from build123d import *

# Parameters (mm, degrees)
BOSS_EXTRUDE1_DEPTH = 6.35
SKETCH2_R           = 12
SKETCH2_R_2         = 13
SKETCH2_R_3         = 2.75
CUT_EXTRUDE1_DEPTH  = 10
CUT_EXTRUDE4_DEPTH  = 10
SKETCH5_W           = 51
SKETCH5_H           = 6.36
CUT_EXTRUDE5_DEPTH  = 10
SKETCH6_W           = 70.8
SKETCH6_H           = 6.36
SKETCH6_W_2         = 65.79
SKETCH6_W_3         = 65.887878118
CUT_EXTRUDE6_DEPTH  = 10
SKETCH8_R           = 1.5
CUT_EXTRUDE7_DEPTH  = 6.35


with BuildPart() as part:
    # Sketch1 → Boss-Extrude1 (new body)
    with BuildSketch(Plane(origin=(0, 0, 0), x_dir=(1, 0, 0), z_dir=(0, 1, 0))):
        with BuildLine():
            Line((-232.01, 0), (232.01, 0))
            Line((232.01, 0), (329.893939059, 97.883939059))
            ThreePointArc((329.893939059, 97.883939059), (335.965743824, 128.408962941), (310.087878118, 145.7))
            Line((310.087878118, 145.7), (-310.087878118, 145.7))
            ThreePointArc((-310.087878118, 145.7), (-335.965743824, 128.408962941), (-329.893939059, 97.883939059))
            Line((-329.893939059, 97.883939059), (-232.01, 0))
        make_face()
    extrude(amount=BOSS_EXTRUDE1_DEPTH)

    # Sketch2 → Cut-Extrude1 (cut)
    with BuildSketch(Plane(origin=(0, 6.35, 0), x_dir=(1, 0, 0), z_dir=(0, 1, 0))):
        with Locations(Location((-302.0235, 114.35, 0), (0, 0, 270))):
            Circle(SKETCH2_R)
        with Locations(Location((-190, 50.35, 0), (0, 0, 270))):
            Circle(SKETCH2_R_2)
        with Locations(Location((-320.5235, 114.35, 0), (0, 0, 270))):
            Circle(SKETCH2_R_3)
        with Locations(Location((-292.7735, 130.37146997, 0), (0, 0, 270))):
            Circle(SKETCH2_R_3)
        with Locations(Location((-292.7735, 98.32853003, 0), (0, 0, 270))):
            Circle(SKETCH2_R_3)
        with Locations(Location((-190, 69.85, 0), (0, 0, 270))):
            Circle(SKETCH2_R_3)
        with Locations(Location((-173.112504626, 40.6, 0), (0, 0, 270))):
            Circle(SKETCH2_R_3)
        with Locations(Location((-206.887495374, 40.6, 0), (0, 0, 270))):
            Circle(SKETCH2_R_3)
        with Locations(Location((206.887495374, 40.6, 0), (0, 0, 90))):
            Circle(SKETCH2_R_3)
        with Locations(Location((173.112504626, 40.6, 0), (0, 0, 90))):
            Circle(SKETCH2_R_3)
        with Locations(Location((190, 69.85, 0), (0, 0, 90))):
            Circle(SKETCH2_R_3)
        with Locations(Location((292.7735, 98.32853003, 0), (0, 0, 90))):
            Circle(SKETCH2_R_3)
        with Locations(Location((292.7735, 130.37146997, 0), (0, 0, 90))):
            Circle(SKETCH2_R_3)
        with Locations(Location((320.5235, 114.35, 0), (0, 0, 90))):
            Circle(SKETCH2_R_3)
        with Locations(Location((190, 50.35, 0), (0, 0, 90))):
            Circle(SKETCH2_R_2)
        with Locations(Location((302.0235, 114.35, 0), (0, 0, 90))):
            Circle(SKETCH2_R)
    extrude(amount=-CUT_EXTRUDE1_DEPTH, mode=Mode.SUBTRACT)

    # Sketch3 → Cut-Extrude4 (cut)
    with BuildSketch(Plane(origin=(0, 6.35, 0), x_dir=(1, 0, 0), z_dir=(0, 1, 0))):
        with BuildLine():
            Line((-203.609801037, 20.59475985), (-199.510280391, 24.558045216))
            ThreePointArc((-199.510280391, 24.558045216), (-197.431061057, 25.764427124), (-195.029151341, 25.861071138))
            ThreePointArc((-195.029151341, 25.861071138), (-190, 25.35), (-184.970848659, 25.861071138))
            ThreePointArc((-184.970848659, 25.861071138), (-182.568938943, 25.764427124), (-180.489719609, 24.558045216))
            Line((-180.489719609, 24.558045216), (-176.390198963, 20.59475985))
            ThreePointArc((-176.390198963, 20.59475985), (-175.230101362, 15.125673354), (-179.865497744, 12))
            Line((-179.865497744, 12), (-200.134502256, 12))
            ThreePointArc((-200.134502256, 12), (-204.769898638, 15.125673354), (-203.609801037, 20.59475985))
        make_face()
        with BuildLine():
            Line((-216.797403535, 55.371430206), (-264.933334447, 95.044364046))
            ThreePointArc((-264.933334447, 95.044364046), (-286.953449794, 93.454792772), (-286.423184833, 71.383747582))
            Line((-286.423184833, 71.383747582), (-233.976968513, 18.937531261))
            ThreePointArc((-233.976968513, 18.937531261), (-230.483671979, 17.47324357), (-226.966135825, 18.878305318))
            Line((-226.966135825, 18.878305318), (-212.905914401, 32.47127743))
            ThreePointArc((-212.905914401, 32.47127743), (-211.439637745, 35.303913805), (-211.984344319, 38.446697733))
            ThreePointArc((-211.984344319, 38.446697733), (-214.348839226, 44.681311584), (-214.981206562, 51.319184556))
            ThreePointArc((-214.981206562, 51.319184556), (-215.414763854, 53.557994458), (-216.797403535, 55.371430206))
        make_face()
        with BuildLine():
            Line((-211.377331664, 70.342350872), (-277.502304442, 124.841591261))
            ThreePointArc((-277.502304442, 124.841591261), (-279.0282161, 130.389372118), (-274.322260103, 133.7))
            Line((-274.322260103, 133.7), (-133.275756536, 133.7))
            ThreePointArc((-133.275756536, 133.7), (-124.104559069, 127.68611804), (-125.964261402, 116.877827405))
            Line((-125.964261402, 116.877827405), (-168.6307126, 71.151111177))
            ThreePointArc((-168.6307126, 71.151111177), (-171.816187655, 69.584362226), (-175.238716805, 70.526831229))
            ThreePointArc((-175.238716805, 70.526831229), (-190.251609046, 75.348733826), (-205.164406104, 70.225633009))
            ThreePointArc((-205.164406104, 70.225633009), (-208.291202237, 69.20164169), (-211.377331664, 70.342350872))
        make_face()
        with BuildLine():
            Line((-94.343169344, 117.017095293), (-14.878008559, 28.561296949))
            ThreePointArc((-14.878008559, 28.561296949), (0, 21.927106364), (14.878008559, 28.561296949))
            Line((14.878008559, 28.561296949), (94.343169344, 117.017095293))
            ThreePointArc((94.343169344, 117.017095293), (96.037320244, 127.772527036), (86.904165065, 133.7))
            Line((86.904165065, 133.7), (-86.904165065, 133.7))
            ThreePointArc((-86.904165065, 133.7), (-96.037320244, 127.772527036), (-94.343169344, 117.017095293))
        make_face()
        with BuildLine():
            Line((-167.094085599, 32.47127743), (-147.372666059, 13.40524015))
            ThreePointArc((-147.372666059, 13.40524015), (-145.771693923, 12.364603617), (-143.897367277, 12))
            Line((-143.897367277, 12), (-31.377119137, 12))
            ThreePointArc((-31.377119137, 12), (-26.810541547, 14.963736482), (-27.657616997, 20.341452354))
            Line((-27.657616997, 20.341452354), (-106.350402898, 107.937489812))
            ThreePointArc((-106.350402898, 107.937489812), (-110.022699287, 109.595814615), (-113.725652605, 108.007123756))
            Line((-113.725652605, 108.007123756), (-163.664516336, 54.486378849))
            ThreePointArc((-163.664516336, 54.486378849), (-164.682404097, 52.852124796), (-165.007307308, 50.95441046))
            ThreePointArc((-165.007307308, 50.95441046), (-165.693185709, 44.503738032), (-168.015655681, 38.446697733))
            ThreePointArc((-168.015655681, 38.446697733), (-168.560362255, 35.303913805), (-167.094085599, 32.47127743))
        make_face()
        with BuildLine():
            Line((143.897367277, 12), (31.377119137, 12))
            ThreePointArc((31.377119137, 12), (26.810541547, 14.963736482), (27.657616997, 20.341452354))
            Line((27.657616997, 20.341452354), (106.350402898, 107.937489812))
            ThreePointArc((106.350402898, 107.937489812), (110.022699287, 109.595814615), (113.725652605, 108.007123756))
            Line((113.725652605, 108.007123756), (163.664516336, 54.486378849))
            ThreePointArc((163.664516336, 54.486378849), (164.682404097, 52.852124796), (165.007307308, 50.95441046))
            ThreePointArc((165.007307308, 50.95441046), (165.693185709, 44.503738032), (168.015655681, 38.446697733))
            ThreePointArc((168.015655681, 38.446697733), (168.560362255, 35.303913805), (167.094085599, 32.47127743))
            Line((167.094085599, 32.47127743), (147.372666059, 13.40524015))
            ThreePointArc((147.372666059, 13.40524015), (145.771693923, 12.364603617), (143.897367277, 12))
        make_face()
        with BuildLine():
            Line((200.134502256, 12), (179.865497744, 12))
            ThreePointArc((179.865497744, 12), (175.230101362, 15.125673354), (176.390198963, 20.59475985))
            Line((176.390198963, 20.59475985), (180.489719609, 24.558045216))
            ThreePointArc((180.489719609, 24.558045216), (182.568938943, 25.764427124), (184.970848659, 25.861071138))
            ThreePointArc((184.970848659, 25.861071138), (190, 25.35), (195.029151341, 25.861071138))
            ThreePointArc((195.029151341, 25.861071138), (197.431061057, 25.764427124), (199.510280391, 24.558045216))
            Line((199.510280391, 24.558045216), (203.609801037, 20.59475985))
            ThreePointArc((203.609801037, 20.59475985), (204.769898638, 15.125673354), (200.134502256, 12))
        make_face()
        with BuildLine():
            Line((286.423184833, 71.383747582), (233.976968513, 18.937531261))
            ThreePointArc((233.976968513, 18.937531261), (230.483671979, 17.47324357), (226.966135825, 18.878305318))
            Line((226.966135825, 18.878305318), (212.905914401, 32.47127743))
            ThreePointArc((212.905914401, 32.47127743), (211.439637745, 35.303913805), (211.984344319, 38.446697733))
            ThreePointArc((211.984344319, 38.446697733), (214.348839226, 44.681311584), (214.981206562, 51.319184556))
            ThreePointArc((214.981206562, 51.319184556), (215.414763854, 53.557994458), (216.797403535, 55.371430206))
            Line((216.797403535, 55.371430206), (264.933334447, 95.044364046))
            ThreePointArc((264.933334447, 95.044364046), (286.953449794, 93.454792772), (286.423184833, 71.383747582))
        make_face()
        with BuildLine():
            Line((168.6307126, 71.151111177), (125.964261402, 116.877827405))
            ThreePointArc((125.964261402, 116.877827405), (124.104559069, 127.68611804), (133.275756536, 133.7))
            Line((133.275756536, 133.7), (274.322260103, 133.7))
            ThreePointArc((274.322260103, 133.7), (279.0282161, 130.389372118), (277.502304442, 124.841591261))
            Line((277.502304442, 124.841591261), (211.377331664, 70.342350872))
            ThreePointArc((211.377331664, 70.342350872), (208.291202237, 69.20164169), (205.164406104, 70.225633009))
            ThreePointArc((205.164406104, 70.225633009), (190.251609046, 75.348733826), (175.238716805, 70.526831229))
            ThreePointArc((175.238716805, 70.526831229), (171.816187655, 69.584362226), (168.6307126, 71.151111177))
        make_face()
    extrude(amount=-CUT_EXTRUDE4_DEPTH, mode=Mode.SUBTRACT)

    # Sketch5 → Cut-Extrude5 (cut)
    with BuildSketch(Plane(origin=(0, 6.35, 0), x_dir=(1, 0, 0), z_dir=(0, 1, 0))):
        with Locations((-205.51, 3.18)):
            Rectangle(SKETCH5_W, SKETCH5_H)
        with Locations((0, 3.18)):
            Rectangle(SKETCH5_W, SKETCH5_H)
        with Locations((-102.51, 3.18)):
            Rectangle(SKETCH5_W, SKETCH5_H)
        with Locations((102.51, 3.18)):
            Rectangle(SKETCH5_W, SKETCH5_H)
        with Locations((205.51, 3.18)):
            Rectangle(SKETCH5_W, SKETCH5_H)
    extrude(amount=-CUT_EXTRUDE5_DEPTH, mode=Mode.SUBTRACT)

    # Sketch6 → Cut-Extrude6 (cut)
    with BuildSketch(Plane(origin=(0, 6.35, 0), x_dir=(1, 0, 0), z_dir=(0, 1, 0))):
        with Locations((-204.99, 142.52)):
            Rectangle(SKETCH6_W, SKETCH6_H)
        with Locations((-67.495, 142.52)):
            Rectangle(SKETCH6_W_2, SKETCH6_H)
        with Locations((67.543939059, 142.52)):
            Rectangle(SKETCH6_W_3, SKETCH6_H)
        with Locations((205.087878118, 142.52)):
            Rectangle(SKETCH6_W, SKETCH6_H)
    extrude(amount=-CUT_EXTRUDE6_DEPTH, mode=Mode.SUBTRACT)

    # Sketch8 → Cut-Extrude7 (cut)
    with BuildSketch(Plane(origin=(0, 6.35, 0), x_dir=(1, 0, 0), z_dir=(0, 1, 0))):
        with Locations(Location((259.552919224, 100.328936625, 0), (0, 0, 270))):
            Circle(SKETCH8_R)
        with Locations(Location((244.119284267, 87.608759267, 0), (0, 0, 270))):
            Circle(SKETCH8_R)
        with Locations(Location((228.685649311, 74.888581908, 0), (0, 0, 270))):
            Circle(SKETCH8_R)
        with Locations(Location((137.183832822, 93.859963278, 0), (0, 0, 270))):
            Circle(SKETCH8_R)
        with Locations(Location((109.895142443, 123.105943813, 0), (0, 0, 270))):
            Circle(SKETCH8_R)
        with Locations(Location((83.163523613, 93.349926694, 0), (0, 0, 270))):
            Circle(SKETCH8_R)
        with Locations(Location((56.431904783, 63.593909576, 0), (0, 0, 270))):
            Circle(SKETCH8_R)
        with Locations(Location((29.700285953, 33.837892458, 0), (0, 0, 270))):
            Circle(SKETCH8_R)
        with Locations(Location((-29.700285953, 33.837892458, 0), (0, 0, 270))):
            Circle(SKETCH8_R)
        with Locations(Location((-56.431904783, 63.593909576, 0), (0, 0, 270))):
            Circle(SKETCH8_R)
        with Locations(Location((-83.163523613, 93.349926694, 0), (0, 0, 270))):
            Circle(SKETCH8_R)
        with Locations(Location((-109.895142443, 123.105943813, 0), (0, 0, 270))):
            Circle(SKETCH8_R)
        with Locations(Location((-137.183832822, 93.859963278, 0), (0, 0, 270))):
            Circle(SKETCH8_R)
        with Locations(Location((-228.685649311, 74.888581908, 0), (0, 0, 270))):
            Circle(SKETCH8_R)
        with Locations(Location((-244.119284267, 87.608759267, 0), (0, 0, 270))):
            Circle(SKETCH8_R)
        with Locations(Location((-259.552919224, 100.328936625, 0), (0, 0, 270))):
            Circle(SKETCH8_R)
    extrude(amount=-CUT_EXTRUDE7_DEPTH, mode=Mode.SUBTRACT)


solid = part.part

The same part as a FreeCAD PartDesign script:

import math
import FreeCAD as App
import Part
import Sketcher
from FreeCAD import Vector
Q = App.Units.Quantity


def add_polygon(sketch, points):
    """Adds a closed chain of lines whose ends are joined by coincident constraints."""
    first, n = sketch.GeometryCount, len(points)
    for a, b in zip(points, points[1:] + points[:1]):
        sketch.addGeometry(Part.LineSegment(App.Vector(*a, 0), App.Vector(*b, 0)), False)
    for i in range(n):
        sketch.addConstraint(Sketcher.Constraint("Coincident", first + i, 2, first + (i + 1) % n, 1))

doc = App.newDocument("Part")
body = doc.addObject("PartDesign::Body", "Body")

sketch1 = doc.addObject("Sketcher::SketchObject", "Sketch")
body.addObject(sketch1)
sketch1.AttachmentSupport = (doc.XZ_Plane, [""])
sketch1.MapMode = "FlatFace"
sketch1.addGeometry([
    Part.LineSegment(Vector(-232, 0, 0), Vector(232, 0, 0)),
    Part.LineSegment(Vector(232, 0, 0), Vector(330, -98, 0)),
    Part.ArcOfCircle(Part.Circle(Vector(310, -118, 0), Vector(0, 0, 1), 28), math.radians(-90), math.radians(45)),
    Part.LineSegment(Vector(310, -146, 0), Vector(-310, -146, 0)),
    Part.ArcOfCircle(Part.Circle(Vector(-310, -118, 0), Vector(0, 0, 1), 28), math.radians(135), math.radians(270)),
    Part.LineSegment(Vector(-330, -98, 0), Vector(-232, 0, 0)),
], False)
sketch1.addConstraint([
    Sketcher.Constraint("Coincident", 0, 2, 1, 1),
    Sketcher.Constraint("Tangent", 1, 2, 2, 2),
    Sketcher.Constraint("Tangent", 2, 1, 3, 1),
    Sketcher.Constraint("Tangent", 3, 2, 4, 2),
    Sketcher.Constraint("Tangent", 4, 1, 5, 1),
    Sketcher.Constraint("Coincident", 5, 2, 0, 1),
    Sketcher.Constraint("Horizontal", 0),
    Sketcher.Constraint("Horizontal", 3),
    Sketcher.Constraint("Equal", 2, 4),
    Sketcher.Constraint("Symmetric", 0, 2, 5, 2, -1, 1),
    Sketcher.Constraint("Perpendicular", 1, 5),
    Sketcher.Constraint("Horizontal", 1, 2, 4, 1),
    Sketcher.Constraint("Radius", 2, Q("28.01 mm")),
    Sketcher.Constraint("DistanceX", 0, 1, 0, 2, Q("464.02 mm")),
    Sketcher.Constraint("DistanceY", 2, 1, -1, 1, Q("145.7 mm")),
])
pad1 = doc.addObject("PartDesign::Pad", "Pad")
body.addObject(pad1)
pad1.Profile = sketch1
pad1.Length = 6.35
pad1.Reversed = True

sketch2 = doc.addObject("Sketcher::SketchObject", "Sketch001")
body.addObject(sketch2)
sketch2.AttachmentSupport = (doc.XZ_Plane, [""])
sketch2.MapMode = "FlatFace"
sketch2.AttachmentOffset = App.Placement(Vector(0, 0, -6.35), App.Rotation())
sketch2.addGeometry([
    Part.Circle(Vector(-302, -114.3, 0), Vector(0, 0, 1), 12),
    Part.Circle(Vector(-190, -50.4, 0), Vector(0, 0, 1), 13),
    Part.Circle(Vector(-320.5, -114.3, 0), Vector(0, 0, 1), 2.8),
    Part.Circle(Vector(-292.8, -130.4, 0), Vector(0, 0, 1), 2.8),
    Part.Circle(Vector(-292.8, -98.3, 0), Vector(0, 0, 1), 2.8),
    Part.Circle(Vector(-190, -69.8, 0), Vector(0, 0, 1), 2.8),
    Part.Circle(Vector(-173.1, -40.6, 0), Vector(0, 0, 1), 2.8),
    Part.Circle(Vector(-206.9, -40.6, 0), Vector(0, 0, 1), 2.8),
    Part.Circle(Vector(206.9, -40.6, 0), Vector(0, 0, 1), 2.8),
    Part.Circle(Vector(173.1, -40.6, 0), Vector(0, 0, 1), 2.8),
    Part.Circle(Vector(190, -69.8, 0), Vector(0, 0, 1), 2.8),
    Part.Circle(Vector(292.8, -98.3, 0), Vector(0, 0, 1), 2.8),
    Part.Circle(Vector(292.8, -130.4, 0), Vector(0, 0, 1), 2.8),
    Part.Circle(Vector(320.5, -114.3, 0), Vector(0, 0, 1), 2.8),
    Part.Circle(Vector(190, -50.4, 0), Vector(0, 0, 1), 13),
    Part.Circle(Vector(302, -114.3, 0), Vector(0, 0, 1), 12),
], False)
sketch2.addConstraint([
    Sketcher.Constraint("Equal", 2, 3),
    Sketcher.Constraint("Equal", 3, 4),
    Sketcher.Constraint("Equal", 4, 5),
    Sketcher.Constraint("Equal", 5, 6),
    Sketcher.Constraint("Equal", 6, 7),
    Sketcher.Constraint("Equal", 7, 8),
    Sketcher.Constraint("Equal", 8, 9),
    Sketcher.Constraint("Equal", 9, 10),
    Sketcher.Constraint("Equal", 10, 11),
    Sketcher.Constraint("Equal", 11, 12),
    Sketcher.Constraint("Equal", 12, 13),
    Sketcher.Constraint("Equal", 1, 14),
    Sketcher.Constraint("Equal", 0, 15),
    Sketcher.Constraint("Symmetric", 7, 3, 8, 3, -2),
    Sketcher.Constraint("Symmetric", 6, 3, 9, 3, -2),
    Sketcher.Constraint("Symmetric", 5, 3, 10, 3, -2),
    Sketcher.Constraint("Symmetric", 4, 3, 11, 3, -2),
    Sketcher.Constraint("Symmetric", 3, 3, 12, 3, -2),
    Sketcher.Constraint("Symmetric", 2, 3, 13, 3, -2),
    Sketcher.Constraint("Symmetric", 1, 3, 14, 3, -2),
    Sketcher.Constraint("Symmetric", 0, 3, 15, 3, -2),
    Sketcher.Constraint("Horizontal", 0, 3, 2, 3),
    Sketcher.Constraint("Horizontal", 6, 3, 7, 3),
    Sketcher.Constraint("Vertical", 3, 3, 4, 3),
    Sketcher.Constraint("Vertical", 1, 3, 5, 3),
    Sketcher.Constraint("Diameter", 0, Q("24 mm")),
    Sketcher.Constraint("Diameter", 1, Q("26 mm")),
    Sketcher.Constraint("Diameter", 2, Q("5.5 mm")),
    Sketcher.Constraint("DistanceX", 1, 3, -1, 1, Q("190 mm")),
    Sketcher.Constraint("DistanceY", 0, 3, 1, 3, Q("64 mm")),
    Sketcher.Constraint("DistanceX", 6, 3, 8, 3, Q("380 mm")),
    Sketcher.Constraint("DistanceY", 6, 3, -1, 1, Q("40.6 mm")),
    Sketcher.Constraint("DistanceX", 2, 3, 0, 3, Q("18.5 mm")),
    Sketcher.Constraint("DistanceY", 5, 3, 1, 3, Q("19.5 mm")),
    Sketcher.Constraint("DistanceY", 0, 3, -1, 1, Q("114.35 mm")),
    Sketcher.Constraint("DistanceX", 0, 3, 3, 3, Q("9.25 mm")),
    Sketcher.Constraint("DistanceX", 0, 3, -1, 1, Q("302.0235 mm")),
    Sketcher.Constraint("DistanceY", 3, 3, -1, 1, Q("130.37147 mm")),
    Sketcher.Constraint("DistanceY", 4, 3, -1, 1, Q("98.32853 mm")),
    Sketcher.Constraint("DistanceX", 7, 3, 6, 3, Q("33.774991 mm")),
])
pocket1 = doc.addObject("PartDesign::Pocket", "Pocket")
body.addObject(pocket1)
pocket1.Profile = sketch2
pocket1.Length = 10
pocket1.Reversed = True

sketch3 = doc.addObject("Sketcher::SketchObject", "Sketch002")
body.addObject(sketch3)
sketch3.AttachmentSupport = (doc.XZ_Plane, [""])
sketch3.MapMode = "FlatFace"
sketch3.AttachmentOffset = App.Placement(Vector(0, 0, -6.35), App.Rotation())
sketch3.addGeometry([
    Part.LineSegment(Vector(-199.5, -24.6, 0), Vector(-203.6, -20.6, 0)),
    Part.ArcOfCircle(Part.Circle(Vector(-200.1, -17, 0), Vector(0, 0, 1), 5), math.radians(90), math.radians(226)),
    Part.LineSegment(Vector(-200.1, -12, 0), Vector(-179.9, -12, 0)),
    Part.ArcOfCircle(Part.Circle(Vector(-179.9, -17, 0), Vector(0, 0, 1), 5), math.radians(-46), math.radians(90)),
    Part.LineSegment(Vector(-176.4, -20.6, 0), Vector(-180.5, -24.6, 0)),
    Part.ArcOfCircle(Part.Circle(Vector(-184, -21, 0), Vector(0, 0, 1), 5), math.radians(-102), math.radians(-46)),
    Part.ArcOfCircle(Part.Circle(Vector(-190, -50.4, 0), Vector(0, 0, 1), 25), math.radians(78), math.radians(102)),
    Part.ArcOfCircle(Part.Circle(Vector(-196, -21, 0), Vector(0, 0, 1), 5), math.radians(-134), math.radians(-78)),
    Part.LineSegment(Vector(-216.8, -55.4, 0), Vector(-264.9, -95, 0)),
    Part.ArcOfCircle(Part.Circle(Vector(-275.1, -82.7, 0), Vector(0, 0, 1), 16), math.radians(135), math.radians(309)),
    Part.LineSegment(Vector(-286.4, -71.4, 0), Vector(-234, -18.9, 0)),
    Part.ArcOfCircle(Part.Circle(Vector(-230.4, -22.5, 0), Vector(0, 0, 1), 5), math.radians(46), math.radians(135)),
    Part.LineSegment(Vector(-227, -18.9, 0), Vector(-212.9, -32.5, 0)),
    Part.ArcOfCircle(Part.Circle(Vector(-216.4, -36.1, 0), Vector(0, 0, 1), 5), math.radians(-28), math.radians(46)),
    Part.ArcOfCircle(Part.Circle(Vector(-190, -50.3, 0), Vector(0, 0, 1), 25), math.radians(152), math.radians(182)),
    Part.ArcOfCircle(Part.Circle(Vector(-220, -51.5, 0), Vector(0, 0, 1), 5), math.radians(-51), math.radians(2)),
    Part.LineSegment(Vector(-277.5, -124.8, 0), Vector(-211.4, -70.3, 0)),
    Part.ArcOfCircle(Part.Circle(Vector(-208.2, -74.2, 0), Vector(0, 0, 1), 5), math.radians(53), math.radians(129)),
    Part.ArcOfCircle(Part.Circle(Vector(-190, -50.4, 0), Vector(0, 0, 1), 25), math.radians(-127), math.radians(-54)),
    Part.ArcOfCircle(Part.Circle(Vector(-172.3, -74.6, 0), Vector(0, 0, 1), 5), math.radians(43), math.radians(126)),
    Part.LineSegment(Vector(-168.6, -71.2, 0), Vector(-126, -116.9, 0)),
    Part.ArcOfCircle(Part.Circle(Vector(-133.3, -123.7, 0), Vector(0, 0, 1), 10), math.radians(-90), math.radians(43)),
    Part.LineSegment(Vector(-133.3, -133.7, 0), Vector(-274.3, -133.7, 0)),
    Part.ArcOfCircle(Part.Circle(Vector(-274.3, -128.7, 0), Vector(0, 0, 1), 5), math.radians(129), math.radians(270)),
    Part.LineSegment(Vector(-94.3, -117, 0), Vector(-14.9, -28.6, 0)),
    Part.ArcOfCircle(Part.Circle(Vector(0, -41.9, 0), Vector(0, 0, 1), 20), math.radians(42), math.radians(138)),
    Part.LineSegment(Vector(14.9, -28.6, 0), Vector(94.3, -117, 0)),
    Part.ArcOfCircle(Part.Circle(Vector(86.9, -123.7, 0), Vector(0, 0, 1), 10), math.radians(-90), math.radians(42)),
    Part.LineSegment(Vector(86.9, -133.7, 0), Vector(-86.9, -133.7, 0)),
    Part.ArcOfCircle(Part.Circle(Vector(-86.9, -123.7, 0), Vector(0, 0, 1), 10), math.radians(138), math.radians(270)),
    Part.LineSegment(Vector(-167.1, -32.5, 0), Vector(-147.4, -13.4, 0)),
    Part.ArcOfCircle(Part.Circle(Vector(-143.9, -17, 0), Vector(0, 0, 1), 5), math.radians(90), math.radians(134)),
    Part.LineSegment(Vector(-143.9, -12, 0), Vector(-31.4, -12, 0)),
    Part.ArcOfCircle(Part.Circle(Vector(-31.4, -17, 0), Vector(0, 0, 1), 5), math.radians(-42), math.radians(90)),
    Part.LineSegment(Vector(-27.7, -20.3, 0), Vector(-106.4, -107.9, 0)),
    Part.ArcOfCircle(Part.Circle(Vector(-110.1, -104.6, 0), Vector(0, 0, 1), 5), math.radians(-137), math.radians(-42)),
    Part.LineSegment(Vector(-113.7, -108, 0), Vector(-163.7, -54.5, 0)),
    Part.ArcOfCircle(Part.Circle(Vector(-160, -51.1, 0), Vector(0, 0, 1), 5), math.radians(179), math.radians(223)),
    Part.ArcOfCircle(Part.Circle(Vector(-190, -50.4, 0), Vector(0, 0, 1), 25), math.radians(-1), math.radians(28)),
    Part.ArcOfCircle(Part.Circle(Vector(-163.6, -36.1, 0), Vector(0, 0, 1), 5), math.radians(134), math.radians(208)),
    Part.LineSegment(Vector(31.4, -12, 0), Vector(143.9, -12, 0)),
    Part.ArcOfCircle(Part.Circle(Vector(143.9, -17, 0), Vector(0, 0, 1), 5), math.radians(46), math.radians(90)),
    Part.LineSegment(Vector(147.4, -13.4, 0), Vector(167.1, -32.5, 0)),
    Part.ArcOfCircle(Part.Circle(Vector(163.6, -36.1, 0), Vector(0, 0, 1), 5), math.radians(-28), math.radians(46)),
    Part.ArcOfCircle(Part.Circle(Vector(190, -50.4, 0), Vector(0, 0, 1), 25), math.radians(152), math.radians(181)),
    Part.ArcOfCircle(Part.Circle(Vector(160, -51.1, 0), Vector(0, 0, 1), 5), math.radians(-43), math.radians(1)),
    Part.LineSegment(Vector(163.7, -54.5, 0), Vector(113.7, -108, 0)),
    Part.ArcOfCircle(Part.Circle(Vector(110.1, -104.6, 0), Vector(0, 0, 1), 5), math.radians(-138), math.radians(-43)),
    Part.LineSegment(Vector(106.4, -107.9, 0), Vector(27.7, -20.3, 0)),
    Part.ArcOfCircle(Part.Circle(Vector(31.4, -17, 0), Vector(0, 0, 1), 5), math.radians(90), math.radians(222)),
    Part.LineSegment(Vector(179.9, -12, 0), Vector(200.1, -12, 0)),
    Part.ArcOfCircle(Part.Circle(Vector(200.1, -17, 0), Vector(0, 0, 1), 5), math.radians(-46), math.radians(90)),
    Part.LineSegment(Vector(203.6, -20.6, 0), Vector(199.5, -24.6, 0)),
    Part.ArcOfCircle(Part.Circle(Vector(196, -21, 0), Vector(0, 0, 1), 5), math.radians(-102), math.radians(-46)),
    Part.ArcOfCircle(Part.Circle(Vector(190, -50.4, 0), Vector(0, 0, 1), 25), math.radians(78), math.radians(102)),
    Part.ArcOfCircle(Part.Circle(Vector(184, -21, 0), Vector(0, 0, 1), 5), math.radians(-134), math.radians(-78)),
    Part.LineSegment(Vector(180.5, -24.6, 0), Vector(176.4, -20.6, 0)),
    Part.ArcOfCircle(Part.Circle(Vector(179.9, -17, 0), Vector(0, 0, 1), 5), math.radians(90), math.radians(226)),
    Part.LineSegment(Vector(234, -18.9, 0), Vector(286.4, -71.4, 0)),
    Part.ArcOfCircle(Part.Circle(Vector(275.1, -82.7, 0), Vector(0, 0, 1), 16), math.radians(-129), math.radians(45)),
    Part.LineSegment(Vector(264.9, -95, 0), Vector(216.8, -55.4, 0)),
    Part.ArcOfCircle(Part.Circle(Vector(220, -51.5, 0), Vector(0, 0, 1), 5), math.radians(178), math.radians(231)),
    Part.ArcOfCircle(Part.Circle(Vector(190, -50.3, 0), Vector(0, 0, 1), 25), math.radians(-2), math.radians(28)),
    Part.ArcOfCircle(Part.Circle(Vector(216.4, -36.1, 0), Vector(0, 0, 1), 5), math.radians(134), math.radians(208)),
    Part.LineSegment(Vector(212.9, -32.5, 0), Vector(227, -18.9, 0)),
    Part.ArcOfCircle(Part.Circle(Vector(230.4, -22.5, 0), Vector(0, 0, 1), 5), math.radians(45), math.radians(134)),
    Part.LineSegment(Vector(126, -116.9, 0), Vector(168.6, -71.2, 0)),
    Part.ArcOfCircle(Part.Circle(Vector(172.3, -74.6, 0), Vector(0, 0, 1), 5), math.radians(54), math.radians(137)),
    Part.ArcOfCircle(Part.Circle(Vector(190, -50.4, 0), Vector(0, 0, 1), 25), math.radians(-126), math.radians(-53)),
    Part.ArcOfCircle(Part.Circle(Vector(208.2, -74.2, 0), Vector(0, 0, 1), 5), math.radians(51), math.radians(127)),
    Part.LineSegment(Vector(211.4, -70.3, 0), Vector(277.5, -124.8, 0)),
    Part.ArcOfCircle(Part.Circle(Vector(274.3, -128.7, 0), Vector(0, 0, 1), 5), math.radians(-90), math.radians(51)),
    Part.LineSegment(Vector(274.3, -133.7, 0), Vector(133.3, -133.7, 0)),
    Part.ArcOfCircle(Part.Circle(Vector(133.3, -123.7, 0), Vector(0, 0, 1), 10), math.radians(137), math.radians(270)),
], False)
sketch3.addConstraint([
    Sketcher.Constraint("Tangent", 0, 2, 1, 2),
    Sketcher.Constraint("Tangent", 1, 1, 2, 1),
    Sketcher.Constraint("Tangent", 2, 2, 3, 2),
    Sketcher.Constraint("Tangent", 3, 1, 4, 1),
    Sketcher.Constraint("Tangent", 4, 2, 5, 2),
    Sketcher.Constraint("Tangent", 5, 1, 6, 1),
    Sketcher.Constraint("Tangent", 6, 2, 7, 2),
    Sketcher.Constraint("Tangent", 7, 1, 0, 1),
    Sketcher.Constraint("Tangent", 8, 2, 9, 2),
    Sketcher.Constraint("Tangent", 9, 1, 10, 1),
    Sketcher.Constraint("Tangent", 10, 2, 11, 2),
    Sketcher.Constraint("Tangent", 11, 1, 12, 1),
    Sketcher.Constraint("Tangent", 12, 2, 13, 2),
    Sketcher.Constraint("Tangent", 13, 1, 14, 1),
    Sketcher.Constraint("Tangent", 14, 2, 15, 2),
    Sketcher.Constraint("Tangent", 15, 1, 8, 1),
    Sketcher.Constraint("Tangent", 16, 2, 17, 2),
    Sketcher.Constraint("Tangent", 17, 1, 18, 1),
    Sketcher.Constraint("Tangent", 18, 2, 19, 2),
    Sketcher.Constraint("Tangent", 19, 1, 20, 1),
    Sketcher.Constraint("Tangent", 20, 2, 21, 2),
    Sketcher.Constraint("Tangent", 21, 1, 22, 1),
    Sketcher.Constraint("Tangent", 22, 2, 23, 2),
    Sketcher.Constraint("Tangent", 23, 1, 16, 1),
    Sketcher.Constraint("Tangent", 24, 2, 25, 2),
    Sketcher.Constraint("Tangent", 25, 1, 26, 1),
    Sketcher.Constraint("Tangent", 26, 2, 27, 2),
    Sketcher.Constraint("Tangent", 27, 1, 28, 1),
    Sketcher.Constraint("Tangent", 28, 2, 29, 2),
    Sketcher.Constraint("Tangent", 29, 1, 24, 1),
    Sketcher.Constraint("Tangent", 30, 2, 31, 2),
    Sketcher.Constraint("Tangent", 31, 1, 32, 1),
    Sketcher.Constraint("Tangent", 32, 2, 33, 2),
    Sketcher.Constraint("Tangent", 33, 1, 34, 1),
    Sketcher.Constraint("Tangent", 34, 2, 35, 2),
    Sketcher.Constraint("Tangent", 35, 1, 36, 1),
    Sketcher.Constraint("Tangent", 36, 2, 37, 2),
    Sketcher.Constraint("Tangent", 37, 1, 38, 1),
    Sketcher.Constraint("Tangent", 38, 2, 39, 2),
    Sketcher.Constraint("Tangent", 39, 1, 30, 1),
    Sketcher.Constraint("Tangent", 40, 2, 41, 2),
    Sketcher.Constraint("Tangent", 41, 1, 42, 1),
    Sketcher.Constraint("Tangent", 42, 2, 43, 2),
    Sketcher.Constraint("Tangent", 43, 1, 44, 1),
    Sketcher.Constraint("Tangent", 44, 2, 45, 2),
    Sketcher.Constraint("Tangent", 45, 1, 46, 1),
    Sketcher.Constraint("Tangent", 46, 2, 47, 2),
    Sketcher.Constraint("Tangent", 47, 1, 48, 1),
    Sketcher.Constraint("Tangent", 48, 2, 49, 2),
    Sketcher.Constraint("Tangent", 49, 1, 40, 1),
    Sketcher.Constraint("Tangent", 50, 2, 51, 2),
    Sketcher.Constraint("Tangent", 51, 1, 52, 1),
    Sketcher.Constraint("Tangent", 52, 2, 53, 2),
    Sketcher.Constraint("Tangent", 53, 1, 54, 1),
    Sketcher.Constraint("Tangent", 54, 2, 55, 2),
    Sketcher.Constraint("Tangent", 55, 1, 56, 1),
    Sketcher.Constraint("Tangent", 56, 2, 57, 2),
    Sketcher.Constraint("Tangent", 57, 1, 50, 1),
    Sketcher.Constraint("Tangent", 58, 2, 59, 2),
    Sketcher.Constraint("Tangent", 59, 1, 60, 1),
    Sketcher.Constraint("Tangent", 60, 2, 61, 2),
    Sketcher.Constraint("Tangent", 61, 1, 62, 1),
    Sketcher.Constraint("Tangent", 62, 2, 63, 2),
    Sketcher.Constraint("Tangent", 63, 1, 64, 1),
    Sketcher.Constraint("Tangent", 64, 2, 65, 2),
    Sketcher.Constraint("Tangent", 65, 1, 58, 1),
    Sketcher.Constraint("Tangent", 66, 2, 67, 2),
    Sketcher.Constraint("Tangent", 67, 1, 68, 1),
    Sketcher.Constraint("Tangent", 68, 2, 69, 2),
    Sketcher.Constraint("Tangent", 69, 1, 70, 1),
    Sketcher.Constraint("Tangent", 70, 2, 71, 2),
    Sketcher.Constraint("Tangent", 71, 1, 72, 1),
    Sketcher.Constraint("Tangent", 72, 2, 73, 2),
    Sketcher.Constraint("Tangent", 73, 1, 66, 1),
    Sketcher.Constraint("Horizontal", 2),
    Sketcher.Constraint("Horizontal", 22),
    Sketcher.Constraint("Horizontal", 28),
    Sketcher.Constraint("Horizontal", 32),
    Sketcher.Constraint("Horizontal", 40),
    Sketcher.Constraint("Horizontal", 50),
    Sketcher.Constraint("Horizontal", 72),
    Sketcher.Constraint("Coincident", 14, 3, 6, 3),
    Sketcher.Constraint("Coincident", 18, 3, 6, 3),
    Sketcher.Constraint("Coincident", 38, 3, 6, 3),
    Sketcher.Constraint("Coincident", 54, 3, 44, 3),
    Sketcher.Constraint("Coincident", 62, 3, 44, 3),
    Sketcher.Constraint("Coincident", 68, 3, 44, 3),
    Sketcher.Constraint("Equal", 1, 3),
    Sketcher.Constraint("Equal", 3, 5),
    Sketcher.Constraint("Equal", 5, 7),
    Sketcher.Constraint("Equal", 7, 11),
    Sketcher.Constraint("Equal", 11, 13),
    Sketcher.Constraint("Equal", 6, 14),
    Sketcher.Constraint("Equal", 13, 15),
    Sketcher.Constraint("Equal", 15, 17),
    Sketcher.Constraint("Equal", 14, 18),
    Sketcher.Constraint("Equal", 17, 19),
    Sketcher.Constraint("Equal", 19, 23),
    Sketcher.Constraint("Equal", 21, 27),
    Sketcher.Constraint("Equal", 27, 29),
    Sketcher.Constraint("Equal", 23, 31),
    Sketcher.Constraint("Equal", 31, 33),
    Sketcher.Constraint("Equal", 33, 35),
    Sketcher.Constraint("Equal", 35, 37),
    Sketcher.Constraint("Equal", 18, 38),
    Sketcher.Constraint("Equal", 37, 39),
    Sketcher.Constraint("Equal", 39, 41),
    Sketcher.Constraint("Equal", 41, 43),
    Sketcher.Constraint("Equal", 38, 44),
    Sketcher.Constraint("Equal", 43, 45),
    Sketcher.Constraint("Equal", 45, 47),
    Sketcher.Constraint("Equal", 47, 49),
    Sketcher.Constraint("Equal", 49, 51),
    Sketcher.Constraint("Equal", 51, 53),
    Sketcher.Constraint("Equal", 44, 54),
    Sketcher.Constraint("Equal", 53, 55),
    Sketcher.Constraint("Equal", 55, 57),
    Sketcher.Constraint("Equal", 9, 59),
    Sketcher.Constraint("Equal", 57, 61),
    Sketcher.Constraint("Equal", 54, 62),
    Sketcher.Constraint("Equal", 61, 63),
    Sketcher.Constraint("Equal", 63, 65),
    Sketcher.Constraint("Equal", 65, 67),
    Sketcher.Constraint("Equal", 62, 68),
    Sketcher.Constraint("Equal", 67, 69),
    Sketcher.Constraint("Equal", 69, 71),
    Sketcher.Constraint("Equal", 29, 73),
    Sketcher.Constraint("Symmetric", 31, 3, 41, 3, -2),
    Sketcher.Constraint("Symmetric", 39, 3, 43, 3, -2),
    Sketcher.Constraint("Symmetric", 37, 3, 45, 3, -2),
    Sketcher.Constraint("Symmetric", 35, 3, 47, 3, -2),
    Sketcher.Constraint("Symmetric", 1, 3, 51, 3, -2),
    Sketcher.Constraint("Symmetric", 9, 3, 59, 3, -2),
    Sketcher.Constraint("Symmetric", 11, 3, 65, 3, -2),
    Sketcher.Constraint("Symmetric", 23, 3, 71, 3, -2),
    Sketcher.Constraint("Symmetric", 24, 2, 25, 1, -2),
    Sketcher.Constraint("Symmetric", 4, 2, 55, 1, -2),
    Sketcher.Constraint("Symmetric", 19, 1, 66, 2, -2),
    Sketcher.Constraint("Parallel", 0, 12),
    Sketcher.Constraint("Parallel", 8, 16),
    Sketcher.Constraint("Parallel", 4, 30),
    Sketcher.Constraint("Parallel", 24, 34),
    Sketcher.Constraint("Parallel", 20, 36),
    Sketcher.Constraint("Parallel", 12, 42),
    Sketcher.Constraint("Parallel", 26, 48),
    Sketcher.Constraint("Parallel", 30, 52),
    Sketcher.Constraint("Perpendicular", 10, 58),
    Sketcher.Constraint("Parallel", 52, 64),
    Sketcher.Constraint("Parallel", 60, 70),
    Sketcher.Constraint("Horizontal", 5, 3, 7, 3),
    Sketcher.Constraint("Horizontal", 21, 3, 27, 3),
    Sketcher.Constraint("Horizontal", 3, 3, 31, 3),
    Sketcher.Constraint("Horizontal", 13, 3, 39, 3),
    Sketcher.Constraint("Horizontal", 15, 3, 61, 3),
    Sketcher.Constraint("Radius", 1, Q("5 mm")),
    Sketcher.Constraint("Radius", 6, Q("25 mm")),
    Sketcher.Constraint("Radius", 9, Q("16 mm")),
    Sketcher.Constraint("Radius", 21, Q("10 mm")),
    Sketcher.Constraint("Radius", 25, Q("20 mm")),
    Sketcher.Constraint("DistanceY", 1, 3, -1, 1, Q("17 mm")),
    Sketcher.Constraint("DistanceX", 6, 3, -1, 1, Q("190 mm")),
    Sketcher.Constraint("DistanceY", 21, 3, -1, 1, Q("123.7 mm")),
    Sketcher.Constraint("DistanceY", 6, 3, -1, 1, Q("50.35 mm")),
    Sketcher.Constraint("DistanceX", 28, 2, 28, 1, Q("173.80833 mm")),
    Sketcher.Constraint("DistanceX", 32, 1, 32, 2, Q("112.520248 mm")),
    Sketcher.Constraint("DistanceX", 0, 2, -1, 1, Q("203.609801 mm")),
    Sketcher.Constraint("Distance", 0, Q("5.702079 mm")),
    Sketcher.Constraint("Distance", 10, Q("74.17015 mm")),
    Sketcher.Constraint("Distance", 12, Q("19.556552 mm")),
    Sketcher.Constraint("Distance", 30, Q("27.430789 mm")),
    Sketcher.Constraint("Distance", 34, Q("117.752369 mm")),
    Sketcher.Constraint("Distance", 36, Q("73.200821 mm")),
    Sketcher.Constraint("DistanceX", 22, 2, 22, 1, Q("141.046504 mm")),
    Sketcher.Constraint("DistanceY", 15, 3, -1, 1, Q("51.513021 mm")),
    Sketcher.Constraint("DistanceY", 17, 3, -1, 1, Q("74.20076 mm")),
    Sketcher.Constraint("DistanceX", 19, 3, -1, 1, Q("172.28646 mm")),
])
pocket2 = doc.addObject("PartDesign::Pocket", "Pocket001")
body.addObject(pocket2)
pocket2.Profile = sketch3
pocket2.Length = 10
pocket2.Reversed = True

sketch4 = doc.addObject("Sketcher::SketchObject", "Sketch003")
body.addObject(sketch4)
sketch4.AttachmentSupport = (doc.XZ_Plane, [""])
sketch4.MapMode = "FlatFace"
sketch4.AttachmentOffset = App.Placement(Vector(0, 0, -6.35), App.Rotation())
add_polygon(sketch4, [(-231, -6), (-231, 0), (-180, 0), (-180, -6)])
add_polygon(sketch4, [(-26, -6), (-26, 0), (26, 0), (26, -6)])
add_polygon(sketch4, [(-128, -6), (-128, 0), (-77, 0), (-77, -6)])
add_polygon(sketch4, [(77, -6), (77, 0), (128, 0), (128, -6)])
add_polygon(sketch4, [(180, -6), (180, 0), (231, 0), (231, -6)])
sketch4.addConstraint([
    Sketcher.Constraint("Vertical", 0),
    Sketcher.Constraint("Horizontal", 1),
    Sketcher.Constraint("Vertical", 2),
    Sketcher.Constraint("Horizontal", 3),
    Sketcher.Constraint("Vertical", 4),
    Sketcher.Constraint("Horizontal", 5),
    Sketcher.Constraint("Vertical", 6),
    Sketcher.Constraint("Horizontal", 7),
    Sketcher.Constraint("Vertical", 8),
    Sketcher.Constraint("Horizontal", 9),
    Sketcher.Constraint("Vertical", 10),
    Sketcher.Constraint("Horizontal", 11),
    Sketcher.Constraint("Vertical", 12),
    Sketcher.Constraint("Horizontal", 13),
    Sketcher.Constraint("Vertical", 14),
    Sketcher.Constraint("Horizontal", 15),
    Sketcher.Constraint("Vertical", 16),
    Sketcher.Constraint("Horizontal", 17),
    Sketcher.Constraint("Vertical", 18),
    Sketcher.Constraint("Horizontal", 19),
    Sketcher.Constraint("Symmetric", 4, 2, 5, 2, -1, 1),
    Sketcher.Constraint("Symmetric", 9, 2, 12, 2, -1, 1),
    Sketcher.Constraint("Symmetric", 1, 2, 16, 2, -1, 1),
    Sketcher.Constraint("Symmetric", 8, 2, 13, 2, -2),
    Sketcher.Constraint("Symmetric", 0, 2, 17, 2, -2),
    Sketcher.Constraint("Horizontal", 3, 2, 6, 2),
    Sketcher.Constraint("Horizontal", 7, 2, 10, 2),
    Sketcher.Constraint("Horizontal", 11, 2, 14, 2),
    Sketcher.Constraint("Horizontal", 15, 2, 18, 2),
    Sketcher.Constraint("Equal", 3, 5),
    Sketcher.Constraint("Equal", 7, 9),
    Sketcher.Constraint("DistanceX", 1, 1, 1, 2, Q("51 mm")),
    Sketcher.Constraint("DistanceX", 1, 2, 8, 2, Q("52 mm")),
    Sketcher.Constraint("DistanceY", 0, 1, 0, 2, Q("6.36 mm")),
    Sketcher.Constraint("DistanceX", 0, 2, -1, 1, Q("231.01 mm")),
])
pocket3 = doc.addObject("PartDesign::Pocket", "Pocket002")
body.addObject(pocket3)
pocket3.Profile = sketch4
pocket3.Length = 10
pocket3.Reversed = True

sketch5 = doc.addObject("Sketcher::SketchObject", "Sketch004")
body.addObject(sketch5)
sketch5.AttachmentSupport = (doc.XZ_Plane, [""])
sketch5.MapMode = "FlatFace"
sketch5.AttachmentOffset = App.Placement(Vector(0, 0, -6.35), App.Rotation())
add_polygon(sketch5, [(-240, -146), (-240, -139), (-170, -139), (-170, -146)])
add_polygon(sketch5, [(-100, -146), (-100, -139), (-35, -139), (-35, -146)])
add_polygon(sketch5, [(35, -146), (35, -139), (100, -139), (100, -146)])
add_polygon(sketch5, [(170, -146), (170, -139), (240, -139), (240, -146)])
sketch5.addConstraint([
    Sketcher.Constraint("Vertical", 0),
    Sketcher.Constraint("Horizontal", 1),
    Sketcher.Constraint("Vertical", 2),
    Sketcher.Constraint("Horizontal", 3),
    Sketcher.Constraint("Vertical", 4),
    Sketcher.Constraint("Horizontal", 5),
    Sketcher.Constraint("Vertical", 6),
    Sketcher.Constraint("Horizontal", 7),
    Sketcher.Constraint("Vertical", 8),
    Sketcher.Constraint("Horizontal", 9),
    Sketcher.Constraint("Vertical", 10),
    Sketcher.Constraint("Horizontal", 11),
    Sketcher.Constraint("Vertical", 12),
    Sketcher.Constraint("Horizontal", 13),
    Sketcher.Constraint("Vertical", 14),
    Sketcher.Constraint("Horizontal", 15),
    Sketcher.Constraint("Symmetric", 5, 2, 8, 2, -2),
    Sketcher.Constraint("Horizontal", 1, 2, 4, 2),
    Sketcher.Constraint("Horizontal", 3, 2, 6, 2),
    Sketcher.Constraint("Horizontal", 7, 2, 10, 2),
    Sketcher.Constraint("Horizontal", 9, 2, 12, 2),
    Sketcher.Constraint("Horizontal", 11, 2, 14, 2),
    Sketcher.Constraint("Equal", 3, 13),
    Sketcher.Constraint("DistanceX", 1, 1, 1, 2, Q("70.8 mm")),
    Sketcher.Constraint("DistanceX", 0, 2, 4, 2, Q("140 mm")),
    Sketcher.Constraint("DistanceX", 9, 2, 13, 2, Q("140 mm")),
    Sketcher.Constraint("DistanceX", 5, 1, 5, 2, Q("65.79 mm")),
    Sketcher.Constraint("DistanceY", 0, 1, 0, 2, Q("6.36 mm")),
    Sketcher.Constraint("DistanceY", 2, 2, -1, 1, Q("145.7 mm")),
    Sketcher.Constraint("DistanceX", 5, 2, -1, 1, Q("34.6 mm")),
    Sketcher.Constraint("DistanceX", 9, 1, 9, 2, Q("65.887878 mm")),
])
pocket4 = doc.addObject("PartDesign::Pocket", "Pocket003")
body.addObject(pocket4)
pocket4.Profile = sketch5
pocket4.Length = 10
pocket4.Reversed = True

sketch6 = doc.addObject("Sketcher::SketchObject", "Sketch005")
body.addObject(sketch6)
sketch6.AttachmentSupport = (doc.XZ_Plane, [""])
sketch6.MapMode = "FlatFace"
sketch6.AttachmentOffset = App.Placement(Vector(0, 0, -6.35), App.Rotation())
sketch6.addGeometry([
    Part.Circle(Vector(259.6, -100.3, 0), Vector(0, 0, 1), 1.5),
    Part.Circle(Vector(244.1, -87.6, 0), Vector(0, 0, 1), 1.5),
    Part.Circle(Vector(228.7, -74.9, 0), Vector(0, 0, 1), 1.5),
    Part.Circle(Vector(137.2, -93.9, 0), Vector(0, 0, 1), 1.5),
    Part.Circle(Vector(109.9, -123.1, 0), Vector(0, 0, 1), 1.5),
    Part.Circle(Vector(83.2, -93.3, 0), Vector(0, 0, 1), 1.5),
    Part.Circle(Vector(56.4, -63.6, 0), Vector(0, 0, 1), 1.5),
    Part.Circle(Vector(29.7, -33.8, 0), Vector(0, 0, 1), 1.5),
    Part.Circle(Vector(-29.7, -33.8, 0), Vector(0, 0, 1), 1.5),
    Part.Circle(Vector(-56.4, -63.6, 0), Vector(0, 0, 1), 1.5),
    Part.Circle(Vector(-83.2, -93.3, 0), Vector(0, 0, 1), 1.5),
    Part.Circle(Vector(-109.9, -123.1, 0), Vector(0, 0, 1), 1.5),
    Part.Circle(Vector(-137.2, -93.9, 0), Vector(0, 0, 1), 1.5),
    Part.Circle(Vector(-228.7, -74.9, 0), Vector(0, 0, 1), 1.5),
    Part.Circle(Vector(-244.1, -87.6, 0), Vector(0, 0, 1), 1.5),
    Part.Circle(Vector(-259.6, -100.3, 0), Vector(0, 0, 1), 1.5),
], False)
sketch6.addConstraint([
    Sketcher.Constraint("Equal", 0, 1),
    Sketcher.Constraint("Equal", 1, 2),
    Sketcher.Constraint("Equal", 2, 3),
    Sketcher.Constraint("Equal", 3, 4),
    Sketcher.Constraint("Equal", 4, 5),
    Sketcher.Constraint("Equal", 5, 6),
    Sketcher.Constraint("Equal", 6, 7),
    Sketcher.Constraint("Equal", 7, 8),
    Sketcher.Constraint("Equal", 8, 9),
    Sketcher.Constraint("Equal", 9, 10),
    Sketcher.Constraint("Equal", 10, 11),
    Sketcher.Constraint("Equal", 11, 12),
    Sketcher.Constraint("Equal", 12, 13),
    Sketcher.Constraint("Equal", 13, 14),
    Sketcher.Constraint("Equal", 14, 15),
    Sketcher.Constraint("Symmetric", 7, 3, 8, 3, -2),
    Sketcher.Constraint("Symmetric", 6, 3, 9, 3, -2),
    Sketcher.Constraint("Symmetric", 5, 3, 10, 3, -2),
    Sketcher.Constraint("Symmetric", 4, 3, 11, 3, -2),
    Sketcher.Constraint("Symmetric", 3, 3, 12, 3, -2),
    Sketcher.Constraint("Symmetric", 2, 3, 13, 3, -2),
    Sketcher.Constraint("Symmetric", 1, 3, 14, 3, -2),
    Sketcher.Constraint("Symmetric", 0, 3, 15, 3, -2),
    Sketcher.Constraint("Diameter", 0, Q("3 mm")),
    Sketcher.Constraint("DistanceX", -1, 1, 0, 3, Q("259.552919 mm")),
    Sketcher.Constraint("DistanceY", 1, 3, -1, 1, Q("87.608759 mm")),
    Sketcher.Constraint("DistanceX", -1, 1, 2, 3, Q("228.685649 mm")),
    Sketcher.Constraint("DistanceY", 2, 3, -1, 1, Q("74.888582 mm")),
    Sketcher.Constraint("DistanceY", 6, 3, -1, 1, Q("63.59391 mm")),
    Sketcher.Constraint("DistanceY", 3, 3, 2, 3, Q("18.971381 mm")),
    Sketcher.Constraint("DistanceX", 3, 3, 1, 3, Q("106.935451 mm")),
    Sketcher.Constraint("DistanceX", 4, 3, 3, 3, Q("27.28869 mm")),
    Sketcher.Constraint("DistanceY", 4, 3, 3, 3, Q("29.245981 mm")),
    Sketcher.Constraint("DistanceX", 5, 3, 4, 3, Q("26.731619 mm")),
    Sketcher.Constraint("DistanceY", 0, 3, 5, 3, Q("6.97901 mm")),
    Sketcher.Constraint("DistanceX", 6, 3, 5, 3, Q("26.731619 mm")),
    Sketcher.Constraint("DistanceX", 7, 3, 6, 3, Q("26.731619 mm")),
    Sketcher.Constraint("DistanceY", 4, 3, 7, 3, Q("89.268051 mm")),
    Sketcher.Constraint("DistanceX", 8, 3, 7, 3, Q("59.400572 mm")),
    Sketcher.Constraint("DistanceY", 0, 3, -1, 1, Q("100.328937 mm")),
])
pocket5 = doc.addObject("PartDesign::Pocket", "Pocket004")
body.addObject(pocket5)
pocket5.Profile = sketch6
pocket5.Length = 6.35
pocket5.Reversed = True

doc.recompute()
